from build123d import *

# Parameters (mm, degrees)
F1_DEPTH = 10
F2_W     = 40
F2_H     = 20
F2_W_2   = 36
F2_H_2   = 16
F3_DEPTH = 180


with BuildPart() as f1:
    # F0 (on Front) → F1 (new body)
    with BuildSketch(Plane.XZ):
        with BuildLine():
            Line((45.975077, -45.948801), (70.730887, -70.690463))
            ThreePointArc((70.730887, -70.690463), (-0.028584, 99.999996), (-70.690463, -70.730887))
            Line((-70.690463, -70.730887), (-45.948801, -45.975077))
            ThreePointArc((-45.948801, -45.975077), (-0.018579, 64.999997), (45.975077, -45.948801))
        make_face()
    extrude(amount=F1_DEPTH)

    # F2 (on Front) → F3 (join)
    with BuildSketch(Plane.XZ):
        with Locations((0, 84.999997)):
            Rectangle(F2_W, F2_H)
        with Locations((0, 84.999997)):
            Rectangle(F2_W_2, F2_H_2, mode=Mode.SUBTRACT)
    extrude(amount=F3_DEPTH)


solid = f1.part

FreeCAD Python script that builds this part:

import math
import FreeCAD as App
import Part
import Sketcher
from FreeCAD import Vector

doc = App.newDocument("Part")
params = doc.addObject("Spreadsheet::Sheet", "Params")
for row, (alias, value) in enumerate([
    ("sketch1_radius", "100 mm"),
    ("sketch1_radius2", "65 mm"),
    ("pad1_length", "10 mm"),
    ("sketch2_width", "40 mm"),
    ("sketch2_width2", "36 mm"),
    ("sketch2_height", "20 mm"),
    ("sketch2_height2", "16 mm"),
    ("pad2_length", "180 mm"),
], start=1):
    params.set(f"A{row}", alias)
    params.set(f"B{row}", "=" + value)
    params.setAlias(f"B{row}", alias)

body = doc.addObject("PartDesign::Body", "Body")

# Sketch on XZ plane
sketch1 = body.newObject("Sketcher::SketchObject", "Sketch")
sketch1.AttachmentSupport = (doc.getObject("XZ_Plane"), [""])
sketch1.MapMode = "FlatFace"
sketch1.addGeometry([
    Part.LineSegment(Vector(46, -46, 0), Vector(71, -71, 0)),
    Part.ArcOfCircle(Part.Circle(Vector(0, 0, 0), Vector(0, 0, 1), 100), math.radians(-45), math.radians(225)),
    Part.LineSegment(Vector(-71, -71, 0), Vector(-46, -46, 0)),
    Part.ArcOfCircle(Part.Circle(Vector(0, 0, 0), Vector(0, 0, 1), 65), math.radians(-45), math.radians(225)),
], False)
sketch1.addConstraint([
    Sketcher.Constraint("Coincident", 0, 2, 1, 1),
    Sketcher.Constraint("Coincident", 1, 2, 2, 1),
    Sketcher.Constraint("Coincident", 2, 2, 3, 2),
    Sketcher.Constraint("Coincident", 3, 1, 0, 1),
    Sketcher.Constraint("Coincident", 1, 3, -1, 1),
    Sketcher.Constraint("Coincident", 3, 3, -1, 1),
    Sketcher.Constraint("Perpendicular", 0, 2),
    Sketcher.Constraint("Radius", 1, 100.0),
    Sketcher.Constraint("Radius", 3, 65.0),
    Sketcher.Constraint("DistanceX", 2, 2, -1, 1, 45.948801),
    Sketcher.Constraint("DistanceY", 3, 1, -1, 1, 45.948801),
    Sketcher.Constraint("DistanceY", 1, 2, 2, 2, 24.75581),
])
sketch1.setExpression("Constraints[7]", "Params.sketch1_radius")
sketch1.setExpression("Constraints[8]", "Params.sketch1_radius2")
pad1 = body.newObject("PartDesign::Pad", "Pad")
pad1.Profile = sketch1
pad1.setExpression("Length", "Params.pad1_length")

# Sketch on XZ plane
sketch2 = body.newObject("Sketcher::SketchObject", "Sketch001")
sketch2.AttachmentSupport = (doc.getObject("XZ_Plane"), [""])
sketch2.MapMode = "FlatFace"
sketch2.addGeometry([
    Part.LineSegment(Vector(-20, 95, 0), Vector(-20, 75, 0)),  # 0
    Part.LineSegment(Vector(-20, 75, 0), Vector(20, 75, 0)),  # 1
    Part.LineSegment(Vector(20, 75, 0), Vector(20, 95, 0)),  # 2
    Part.LineSegment(Vector(20, 95, 0), Vector(-20, 95, 0)),  # 3
    Part.LineSegment(Vector(18, 77, 0), Vector(-18, 77, 0)),  # 4
    Part.LineSegment(Vector(-18, 77, 0), Vector(-18, 93, 0)),  # 5
    Part.LineSegment(Vector(-18, 93, 0), Vector(18, 93, 0)),  # 6
    Part.LineSegment(Vector(18, 93, 0), Vector(18, 77, 0)),  # 7
], False)
sketch2.addConstraint([
    Sketcher.Constraint("Coincident", 0, 2, 1, 1),
    Sketcher.Constraint("Coincident", 1, 2, 2, 1),
    Sketcher.Constraint("Coincident", 2, 2, 3, 1),
    Sketcher.Constraint("Coincident", 3, 2, 0, 1),
    Sketcher.Constraint("Coincident", 4, 2, 5, 1),
    Sketcher.Constraint("Coincident", 5, 2, 6, 1),
    Sketcher.Constraint("Coincident", 6, 2, 7, 1),
    Sketcher.Constraint("Coincident", 7, 2, 4, 1),
    Sketcher.Constraint("Vertical", 0),
    Sketcher.Constraint("Horizontal", 1),
    Sketcher.Constraint("Vertical", 2),
    Sketcher.Constraint("Horizontal", 3),
    Sketcher.Constraint("Horizontal", 4),
    Sketcher.Constraint("Vertical", 5),
    Sketcher.Constraint("Horizontal", 6),
    Sketcher.Constraint("Vertical", 7),
    Sketcher.Constraint("DistanceX", 1, 1, 1, 2, 40.0),
    Sketcher.Constraint("DistanceX", 4, 2, 4, 1, 36.0),
    Sketcher.Constraint("DistanceY", 0, 2, 0, 1, 20.0),
    Sketcher.Constraint("DistanceY", 5, 1, 5, 2, 16.0),
    Sketcher.Constraint("DistanceX", 0, 2, -1, 1, 20.0),
    Sketcher.Constraint("DistanceX", 4, 2, -1, 1, 18.0),
    Sketcher.Constraint("DistanceY", 0, 2, 4, 2, 2.0),
    Sketcher.Constraint("DistanceY", -1, 1, 0, 2, 74.999997),
])
sketch2.setExpression("Constraints[16]", "Params.sketch2_width")
sketch2.setExpression("Constraints[17]", "Params.sketch2_width2")
sketch2.setExpression("Constraints[18]", "Params.sketch2_height")
sketch2.setExpression("Constraints[19]", "Params.sketch2_height2")
pad2 = body.newObject("PartDesign::Pad", "Pad001")
pad2.Profile = sketch2
pad2.setExpression("Length", "Params.pad2_length")

doc.recompute()
